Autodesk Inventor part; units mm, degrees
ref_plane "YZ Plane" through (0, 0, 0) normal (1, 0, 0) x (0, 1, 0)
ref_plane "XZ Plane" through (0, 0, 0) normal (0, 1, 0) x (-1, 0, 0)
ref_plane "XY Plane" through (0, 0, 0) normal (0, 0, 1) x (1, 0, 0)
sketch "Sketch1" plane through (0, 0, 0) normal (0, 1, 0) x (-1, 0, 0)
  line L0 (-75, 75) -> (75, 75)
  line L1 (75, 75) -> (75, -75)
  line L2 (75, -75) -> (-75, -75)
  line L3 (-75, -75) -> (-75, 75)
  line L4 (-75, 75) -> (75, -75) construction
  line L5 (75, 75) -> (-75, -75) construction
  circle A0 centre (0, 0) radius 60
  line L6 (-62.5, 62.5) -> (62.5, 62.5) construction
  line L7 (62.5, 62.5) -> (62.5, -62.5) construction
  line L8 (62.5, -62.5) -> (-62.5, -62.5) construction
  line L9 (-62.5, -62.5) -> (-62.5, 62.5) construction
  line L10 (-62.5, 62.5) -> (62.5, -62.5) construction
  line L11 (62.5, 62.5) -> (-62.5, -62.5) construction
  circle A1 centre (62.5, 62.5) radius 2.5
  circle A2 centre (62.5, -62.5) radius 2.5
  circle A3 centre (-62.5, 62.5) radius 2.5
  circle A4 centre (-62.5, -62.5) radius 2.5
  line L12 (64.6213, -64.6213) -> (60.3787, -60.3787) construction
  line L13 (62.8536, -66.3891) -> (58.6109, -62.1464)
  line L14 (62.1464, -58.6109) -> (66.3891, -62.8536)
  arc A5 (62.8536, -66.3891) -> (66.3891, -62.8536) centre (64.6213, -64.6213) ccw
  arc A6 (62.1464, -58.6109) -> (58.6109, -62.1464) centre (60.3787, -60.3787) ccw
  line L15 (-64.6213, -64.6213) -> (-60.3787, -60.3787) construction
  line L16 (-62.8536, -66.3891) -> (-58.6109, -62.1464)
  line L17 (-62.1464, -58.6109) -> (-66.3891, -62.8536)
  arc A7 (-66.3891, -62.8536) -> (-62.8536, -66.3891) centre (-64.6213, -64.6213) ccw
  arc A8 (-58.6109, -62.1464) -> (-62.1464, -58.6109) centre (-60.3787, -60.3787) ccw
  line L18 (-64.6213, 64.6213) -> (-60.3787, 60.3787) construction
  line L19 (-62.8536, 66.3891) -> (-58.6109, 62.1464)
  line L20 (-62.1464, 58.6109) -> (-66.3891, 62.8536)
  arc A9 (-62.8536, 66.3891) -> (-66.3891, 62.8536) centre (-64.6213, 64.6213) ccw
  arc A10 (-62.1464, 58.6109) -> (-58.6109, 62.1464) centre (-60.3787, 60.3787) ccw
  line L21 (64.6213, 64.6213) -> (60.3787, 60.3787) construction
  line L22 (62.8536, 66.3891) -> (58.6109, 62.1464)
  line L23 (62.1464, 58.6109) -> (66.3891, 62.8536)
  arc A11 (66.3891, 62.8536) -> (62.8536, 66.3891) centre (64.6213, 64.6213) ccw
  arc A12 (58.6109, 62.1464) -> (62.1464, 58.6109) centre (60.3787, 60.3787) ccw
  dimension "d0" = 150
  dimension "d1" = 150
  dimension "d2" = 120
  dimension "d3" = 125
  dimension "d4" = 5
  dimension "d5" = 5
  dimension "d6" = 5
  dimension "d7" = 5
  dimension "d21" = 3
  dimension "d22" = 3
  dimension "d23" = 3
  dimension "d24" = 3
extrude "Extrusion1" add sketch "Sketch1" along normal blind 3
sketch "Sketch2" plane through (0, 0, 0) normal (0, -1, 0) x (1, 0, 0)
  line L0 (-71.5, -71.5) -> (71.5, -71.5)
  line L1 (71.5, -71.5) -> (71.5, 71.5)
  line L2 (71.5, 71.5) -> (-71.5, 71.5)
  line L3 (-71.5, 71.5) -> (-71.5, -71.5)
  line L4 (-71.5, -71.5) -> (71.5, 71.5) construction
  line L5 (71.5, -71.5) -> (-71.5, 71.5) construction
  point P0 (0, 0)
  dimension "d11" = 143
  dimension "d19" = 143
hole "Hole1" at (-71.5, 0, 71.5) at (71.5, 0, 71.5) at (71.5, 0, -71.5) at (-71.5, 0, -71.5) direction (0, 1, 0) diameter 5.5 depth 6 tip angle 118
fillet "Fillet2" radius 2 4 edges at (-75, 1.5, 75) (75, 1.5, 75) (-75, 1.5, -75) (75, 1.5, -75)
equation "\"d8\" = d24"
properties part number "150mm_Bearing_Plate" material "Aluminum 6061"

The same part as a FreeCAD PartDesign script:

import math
import FreeCAD as App
import Part
import Sketcher

V = App.Vector
Q = App.Units.Quantity


def edges_at(feature, points):
    """Names of the edges that pass closest to the given points."""
    edges = feature.Shape.Edges
    near = lambda p: min(range(len(edges)), key=lambda i: edges[i].distToShape(Part.Vertex(*p))[0])
    return sorted({f"Edge{near(p) + 1}" for p in points})


def add_polygon(sketch, points):
    """Adds a closed chain of lines whose ends are joined by coincident constraints."""
    first, n = sketch.GeometryCount, len(points)
    for a, b in zip(points, points[1:] + points[:1]):
        sketch.addGeometry(Part.LineSegment(App.Vector(*a, 0), App.Vector(*b, 0)), False)
    for i in range(n):
        sketch.addConstraint(Sketcher.Constraint("Coincident", first + i, 2, first + (i + 1) % n, 1))

doc = App.newDocument("Part")
body = doc.addObject("PartDesign::Body", "Body")

# Sketch on XZ plane
sketch1 = body.newObject("Sketcher::SketchObject", "Sketch")
sketch1.AttachmentSupport = (doc.getObject("XZ_Plane"), [""])
sketch1.MapMode = "FlatFace"
add_polygon(sketch1, [(-75, 75), (75, 75), (75, -75), (-75, -75)])  # lines 0-3
sketch1.addGeometry(Part.LineSegment(V(66.3891, -62.8536, 0), V(62.1464, -58.6109, 0)), False)  # 4
sketch1.addGeometry(Part.ArcOfCircle(Part.Circle(V(60.3787, -60.3787, 0), V(0, 0, 1), 2.499976), math.radians(45.001621), math.radians(224.998379)), False)  # 5
sketch1.addGeometry(Part.LineSegment(V(58.6109, -62.1464, 0), V(62.8536, -66.3891, 0)), False)  # 6
sketch1.addGeometry(Part.ArcOfCircle(Part.Circle(V(64.6213, -64.6213, 0), V(0, 0, 1), 2.499976), math.radians(-134.998379), math.radians(44.998379)), False)  # 7
sketch1.addGeometry(Part.LineSegment(V(-62.1464, -58.6109, 0), V(-66.3891, -62.8536, 0)), False)  # 8
sketch1.addGeometry(Part.ArcOfCircle(Part.Circle(V(-64.6213, -64.6213, 0), V(0, 0, 1), 2.499976), math.radians(135.001621), math.radians(314.998379)), False)  # 9
sketch1.addGeometry(Part.LineSegment(V(-62.8536, -66.3891, 0), V(-58.6109, -62.1464, 0)), False)  # 10
sketch1.addGeometry(Part.ArcOfCircle(Part.Circle(V(-60.3787, -60.3787, 0), V(0, 0, 1), 2.499976), math.radians(-44.998379), math.radians(134.998379)), False)  # 11
sketch1.addGeometry(Part.LineSegment(V(62.8536, 66.3891, 0), V(58.6109, 62.1464, 0)), False)  # 12
sketch1.addGeometry(Part.ArcOfCircle(Part.Circle(V(60.3787, 60.3787, 0), V(0, 0, 1), 2.499976), math.radians(135.001621), math.radians(314.998379)), False)  # 13
sketch1.addGeometry(Part.LineSegment(V(62.1464, 58.6109, 0), V(66.3891, 62.8536, 0)), False)  # 14
sketch1.addGeometry(Part.ArcOfCircle(Part.Circle(V(64.6213, 64.6213, 0), V(0, 0, 1), 2.499976), math.radians(-44.998379), math.radians(134.998379)), False)  # 15
sketch1.addGeometry(Part.Circle(V(0, 0, 0), V(0, 0, 1), 60), False)  # 16
sketch1.addGeometry(Part.LineSegment(V(-58.6109, 62.1464, 0), V(-62.8536, 66.3891, 0)), False)  # 17
sketch1.addGeometry(Part.ArcOfCircle(Part.Circle(V(-64.6213, 64.6213, 0), V(0, 0, 1), 2.499976), math.radians(45.001621), math.radians(224.998379)), False)  # 18
sketch1.addGeometry(Part.LineSegment(V(-66.3891, 62.8536, 0), V(-62.1464, 58.6109, 0)), False)  # 19
sketch1.addGeometry(Part.ArcOfCircle(Part.Circle(V(-60.3787, 60.3787, 0), V(0, 0, 1), 2.499976), math.radians(-134.998379), math.radians(44.998379)), False)  # 20
sketch1.addConstraint([
    Sketcher.Constraint("Tangent", 4, 2, 5, 1),
    Sketcher.Constraint("Tangent", 5, 2, 6, 1),
    Sketcher.Constraint("Tangent", 6, 2, 7, 1),
    Sketcher.Constraint("Tangent", 7, 2, 4, 1),
    Sketcher.Constraint("Tangent", 8, 2, 9, 1),
    Sketcher.Constraint("Tangent", 9, 2, 10, 1),
    Sketcher.Constraint("Tangent", 10, 2, 11, 1),
    Sketcher.Constraint("Tangent", 11, 2, 8, 1),
    Sketcher.Constraint("Tangent", 12, 2, 13, 1),
    Sketcher.Constraint("Tangent", 13, 2, 14, 1),
    Sketcher.Constraint("Tangent", 14, 2, 15, 1),
    Sketcher.Constraint("Tangent", 15, 2, 12, 1),
    Sketcher.Constraint("Tangent", 17, 2, 18, 1),
    Sketcher.Constraint("Tangent", 18, 2, 19, 1),
    Sketcher.Constraint("Tangent", 19, 2, 20, 1),
    Sketcher.Constraint("Tangent", 20, 2, 17, 1),
    Sketcher.Constraint("Horizontal", 0),
    Sketcher.Constraint("Vertical", 1),
    Sketcher.Constraint("Horizontal", 2),
    Sketcher.Constraint("Vertical", 3),
    Sketcher.Constraint("Coincident", 16, 3, -1, 1),
    Sketcher.Constraint("Equal", 5, 7),
    Sketcher.Constraint("Equal", 7, 9),
    Sketcher.Constraint("Equal", 9, 11),
    Sketcher.Constraint("Equal", 11, 13),
    Sketcher.Constraint("Equal", 13, 15),
    Sketcher.Constraint("Equal", 15, 18),
    Sketcher.Constraint("Equal", 18, 20),
    Sketcher.Constraint("Symmetric", 11, 3, 13, 3, -1, 1),
    Sketcher.Constraint("Symmetric", 9, 3, 15, 3, -1, 1),
    Sketcher.Constraint("Symmetric", 7, 3, 18, 3, -1, 1),
    Sketcher.Constraint("Symmetric", 5, 3, 20, 3, -1, 1),
    Sketcher.Constraint("Symmetric", 0, 2, 2, 2, -1, 1),
    Sketcher.Constraint("Symmetric", 7, 3, 9, 3, -2),
    Sketcher.Constraint("Symmetric", 5, 3, 11, 3, -2),
    Sketcher.Constraint("Perpendicular", 6, 8),
    Sketcher.Constraint("Equal", 2, 1),
    Sketcher.Constraint("Diameter", 16, Q("120 mm")),
    Sketcher.Constraint("Radius", 5, Q("2.5 mm")),
    Sketcher.Constraint("DistanceX", 0, 1, 0, 2, Q("150 mm")),
    Sketcher.Constraint("DistanceX", 9, 3, 5, 3, Q("125 mm")),
    Sketcher.Constraint("DistanceY", 7, 3, 13, 3, Q("125 mm")),
    Sketcher.Constraint("Distance", 4, Q("6 mm")),
])
pad1 = body.newObject("PartDesign::Pad", "Pad")
pad1.Profile = sketch1
pad1.Length = 3
pad1.Reversed = True

# Sketch on XZ plane
sketch2 = body.newObject("Sketcher::SketchObject", "Sketch001")
sketch2.AttachmentSupport = (doc.getObject("XZ_Plane"), [""])
sketch2.MapMode = "FlatFace"
sketch2.addGeometry([
    Part.Circle(V(-71.5, 71.5, 0), V(0, 0, 1), 2.75),
    Part.Circle(V(71.5, 71.5, 0), V(0, 0, 1), 2.75),
    Part.Circle(V(71.5, -71.5, 0), V(0, 0, 1), 2.75),
    Part.Circle(V(-71.5, -71.5, 0), V(0, 0, 1), 2.75),
], False)
sketch2.addConstraint([
    Sketcher.Constraint("Equal", 0, 1),
    Sketcher.Constraint("Equal", 1, 2),
    Sketcher.Constraint("Equal", 2, 3),
    Sketcher.Constraint("Symmetric", 0, 3, 2, 3, -1, 1),
    Sketcher.Constraint("Symmetric", 1, 3, 3, 3, -1, 1),
    Sketcher.Constraint("Symmetric", 0, 3, 1, 3, -2),
    Sketcher.Constraint("Diameter", 0, Q("5.5 mm")),
    Sketcher.Constraint("DistanceX", 0, 3, 1, 3, Q("143 mm")),
    Sketcher.Constraint("DistanceY", 2, 3, 1, 3, Q("143 mm")),
])
doc.recompute()
hole = body.newObject("PartDesign::Hole", "Hole")
hole.Profile = sketch2
hole.ThreadType = "None"
hole.Diameter = 5.5
hole.DepthType = "Dimension"
hole.Depth = 6
hole.DrillPoint = "Angled"
hole.DrillPointAngle = 118
doc.recompute()

fillet = body.newObject("PartDesign::Fillet", "Fillet")
fillet.Base = (hole, edges_at(hole, [
    (-75, 1.5, 75),
    (75, 1.5, 75),
    (-75, 1.5, -75),
    (75, 1.5, -75),
]))
fillet.Radius = 2

doc.recompute()
